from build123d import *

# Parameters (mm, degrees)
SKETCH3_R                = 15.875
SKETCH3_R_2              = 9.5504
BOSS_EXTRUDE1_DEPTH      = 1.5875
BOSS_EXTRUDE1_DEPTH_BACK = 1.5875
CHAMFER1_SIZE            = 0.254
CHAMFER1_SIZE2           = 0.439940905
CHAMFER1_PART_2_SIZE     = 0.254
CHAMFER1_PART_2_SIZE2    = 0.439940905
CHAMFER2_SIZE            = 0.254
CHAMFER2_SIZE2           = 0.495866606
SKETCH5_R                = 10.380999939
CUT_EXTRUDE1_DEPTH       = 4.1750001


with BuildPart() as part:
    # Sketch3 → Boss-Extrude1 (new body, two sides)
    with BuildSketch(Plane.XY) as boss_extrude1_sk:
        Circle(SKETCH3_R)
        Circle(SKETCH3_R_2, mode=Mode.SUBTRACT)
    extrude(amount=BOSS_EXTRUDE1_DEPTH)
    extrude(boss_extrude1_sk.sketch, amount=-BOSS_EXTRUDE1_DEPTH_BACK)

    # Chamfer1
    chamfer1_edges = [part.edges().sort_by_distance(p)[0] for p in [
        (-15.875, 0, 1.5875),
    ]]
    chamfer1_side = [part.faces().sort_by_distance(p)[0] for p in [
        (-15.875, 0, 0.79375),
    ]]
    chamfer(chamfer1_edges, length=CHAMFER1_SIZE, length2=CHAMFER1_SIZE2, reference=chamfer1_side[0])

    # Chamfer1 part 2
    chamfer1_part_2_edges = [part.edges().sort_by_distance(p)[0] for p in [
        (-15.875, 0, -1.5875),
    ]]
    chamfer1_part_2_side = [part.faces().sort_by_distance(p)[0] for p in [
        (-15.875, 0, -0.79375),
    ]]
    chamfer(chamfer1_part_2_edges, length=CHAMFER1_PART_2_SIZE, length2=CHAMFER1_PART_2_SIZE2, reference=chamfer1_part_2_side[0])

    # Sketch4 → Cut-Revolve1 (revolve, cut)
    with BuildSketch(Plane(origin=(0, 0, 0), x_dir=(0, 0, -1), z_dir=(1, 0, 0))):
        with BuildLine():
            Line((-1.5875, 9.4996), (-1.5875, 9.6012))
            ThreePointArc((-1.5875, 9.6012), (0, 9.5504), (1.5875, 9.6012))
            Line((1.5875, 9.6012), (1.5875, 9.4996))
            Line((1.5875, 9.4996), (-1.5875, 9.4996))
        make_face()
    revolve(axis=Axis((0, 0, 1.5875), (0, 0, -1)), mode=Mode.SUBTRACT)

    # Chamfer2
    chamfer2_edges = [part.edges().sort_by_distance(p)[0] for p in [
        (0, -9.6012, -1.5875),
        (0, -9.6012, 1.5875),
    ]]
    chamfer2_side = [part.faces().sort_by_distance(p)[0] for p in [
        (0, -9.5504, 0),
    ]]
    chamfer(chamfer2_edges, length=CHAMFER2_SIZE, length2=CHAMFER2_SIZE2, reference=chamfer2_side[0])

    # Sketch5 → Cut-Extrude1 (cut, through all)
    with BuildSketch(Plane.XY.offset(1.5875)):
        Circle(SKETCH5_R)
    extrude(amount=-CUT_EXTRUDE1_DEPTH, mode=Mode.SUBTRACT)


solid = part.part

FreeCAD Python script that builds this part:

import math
import FreeCAD as App
import Part
import Sketcher
Q = App.Units.Quantity


def edges_at(feature, points):
    """Names of the edges that pass closest to the given points."""
    edges = feature.Shape.Edges
    near = lambda p: min(range(len(edges)), key=lambda i: edges[i].distToShape(Part.Vertex(*p))[0])
    return sorted({f"Edge{near(p) + 1}" for p in points})

doc = App.newDocument("Part")
body = doc.addObject("PartDesign::Body", "Body")

# Sketch on XY plane
sketch1 = body.newObject("Sketcher::SketchObject", "Sketch")
sketch1.AttachmentSupport = (doc.getObject("XY_Plane"), [""])
sketch1.MapMode = "FlatFace"
sketch1.addGeometry(Part.Circle(App.Vector(0, 0, 0), App.Vector(0, 0, 1), 16), False)
sketch1.addGeometry(Part.Circle(App.Vector(0, 0, 0), App.Vector(0, 0, 1), 10), False)
sketch1.addConstraint(Sketcher.Constraint("Coincident", 0, 3, -1, 1))
sketch1.addConstraint(Sketcher.Constraint("Coincident", 1, 3, -1, 1))
sketch1.addConstraint(Sketcher.Constraint("Diameter", 0, Q("1.25 in")))
sketch1.addConstraint(Sketcher.Constraint("Diameter", 1, Q("0.752 in")))
pad1 = body.newObject("PartDesign::Pad", "Pad")
pad1.Profile = sketch1
pad1.Type = "TwoLengths"
pad1.Length = Q("0.0625 in")
pad1.Length2 = Q("0.0625 in")
doc.recompute()

chamfer = body.newObject("PartDesign::Chamfer", "Chamfer")
chamfer.Base = (pad1, edges_at(pad1, [(-15.875, 0, 1.587)]))
chamfer.ChamferType = "Two distances"
chamfer.Size = Q("0.01 in")
chamfer.Size2 = 0.439941
doc.recompute()

chamfer2 = body.newObject("PartDesign::Chamfer", "Chamfer001")
chamfer2.Base = (chamfer, edges_at(chamfer, [(-15.875, 0, -1.587)]))
chamfer2.ChamferType = "Two distances"
chamfer2.Size = Q("0.01 in")
chamfer2.Size2 = 0.439941

# Sketch on YZ plane
sketch2 = body.newObject("Sketcher::SketchObject", "Sketch001")
sketch2.AttachmentSupport = (doc.getObject("YZ_Plane"), [""])
sketch2.MapMode = "FlatFace"
sketch2.addGeometry(Part.LineSegment(App.Vector(9.6, 1.59, 0), App.Vector(9.5, 1.59, 0)), False)
sketch2.addGeometry(Part.LineSegment(App.Vector(9.5, 1.59, 0), App.Vector(9.5, -1.59, 0)), False)
sketch2.addGeometry(Part.LineSegment(App.Vector(9.5, -1.59, 0), App.Vector(9.6, -1.59, 0)), False)
sketch2.addGeometry(Part.ArcOfCircle(Part.Circle(App.Vector(34.38, 0, 0), App.Vector(0, 0, 1), 24.83), math.radians(176.33), math.radians(183.67)), False)
sketch2.addConstraint(Sketcher.Constraint("Coincident", 0, 2, 1, 1))
sketch2.addConstraint(Sketcher.Constraint("Coincident", 1, 2, 2, 1))
sketch2.addConstraint(Sketcher.Constraint("Coincident", 2, 2, 3, 2))
sketch2.addConstraint(Sketcher.Constraint("Coincident", 3, 1, 0, 1))
sketch2.addConstraint(Sketcher.Constraint("Horizontal", 0))
sketch2.addConstraint(Sketcher.Constraint("Vertical", 1))
sketch2.addConstraint(Sketcher.Constraint("Horizontal", 2))
sketch2.addConstraint(Sketcher.Constraint("Symmetric", 2, 2, 3, 1, -1))
sketch2.addConstraint(Sketcher.Constraint("DistanceX", 0, 2, 0, 1, Q("0.004 in")))
sketch2.addConstraint(Sketcher.Constraint("DistanceY", 1, 2, 1, 1, Q("0.125 in")))
sketch2.addConstraint(Sketcher.Constraint("DistanceX", -1, 1, 0, 2, Q("0.374 in")))
sketch2.addConstraint(Sketcher.Constraint("Radius", 3, 24.830088))
groove = body.newObject("PartDesign::Groove", "Groove")
groove.Profile = sketch2
groove.ReferenceAxis = (sketch2, ["V_Axis"])
groove.Angle = 360
doc.recompute()

chamfer3 = body.newObject("PartDesign::Chamfer", "Chamfer002")
chamfer3.Base = (groove, edges_at(groove, [(0, -9.601, -1.587), (0, -9.601, 1.587)]))
chamfer3.ChamferType = "Two distances"
chamfer3.Size = Q("0.01 in")
chamfer3.Size2 = 0.495867

# Sketch on XY plane
sketch3 = body.newObject("Sketcher::SketchObject", "Sketch002")
sketch3.AttachmentSupport = (doc.getObject("XY_Plane"), [""])
sketch3.MapMode = "FlatFace"
sketch3.AttachmentOffset = App.Placement(App.Vector(0, 0, 0.0625 * 25.4), App.Rotation())
sketch3.addGeometry(Part.Circle(App.Vector(0, 0, 0), App.Vector(0, 0, 1), 10), False)
sketch3.addConstraint(Sketcher.Constraint("Coincident", 0, 3, -1, 1))
sketch3.addConstraint(Sketcher.Constraint("Diameter", 0, 20.762))
pocket1 = body.newObject("PartDesign::Pocket", "Pocket")
pocket1.Profile = sketch3
pocket1.Type = "ThroughAll"

doc.recompute()
